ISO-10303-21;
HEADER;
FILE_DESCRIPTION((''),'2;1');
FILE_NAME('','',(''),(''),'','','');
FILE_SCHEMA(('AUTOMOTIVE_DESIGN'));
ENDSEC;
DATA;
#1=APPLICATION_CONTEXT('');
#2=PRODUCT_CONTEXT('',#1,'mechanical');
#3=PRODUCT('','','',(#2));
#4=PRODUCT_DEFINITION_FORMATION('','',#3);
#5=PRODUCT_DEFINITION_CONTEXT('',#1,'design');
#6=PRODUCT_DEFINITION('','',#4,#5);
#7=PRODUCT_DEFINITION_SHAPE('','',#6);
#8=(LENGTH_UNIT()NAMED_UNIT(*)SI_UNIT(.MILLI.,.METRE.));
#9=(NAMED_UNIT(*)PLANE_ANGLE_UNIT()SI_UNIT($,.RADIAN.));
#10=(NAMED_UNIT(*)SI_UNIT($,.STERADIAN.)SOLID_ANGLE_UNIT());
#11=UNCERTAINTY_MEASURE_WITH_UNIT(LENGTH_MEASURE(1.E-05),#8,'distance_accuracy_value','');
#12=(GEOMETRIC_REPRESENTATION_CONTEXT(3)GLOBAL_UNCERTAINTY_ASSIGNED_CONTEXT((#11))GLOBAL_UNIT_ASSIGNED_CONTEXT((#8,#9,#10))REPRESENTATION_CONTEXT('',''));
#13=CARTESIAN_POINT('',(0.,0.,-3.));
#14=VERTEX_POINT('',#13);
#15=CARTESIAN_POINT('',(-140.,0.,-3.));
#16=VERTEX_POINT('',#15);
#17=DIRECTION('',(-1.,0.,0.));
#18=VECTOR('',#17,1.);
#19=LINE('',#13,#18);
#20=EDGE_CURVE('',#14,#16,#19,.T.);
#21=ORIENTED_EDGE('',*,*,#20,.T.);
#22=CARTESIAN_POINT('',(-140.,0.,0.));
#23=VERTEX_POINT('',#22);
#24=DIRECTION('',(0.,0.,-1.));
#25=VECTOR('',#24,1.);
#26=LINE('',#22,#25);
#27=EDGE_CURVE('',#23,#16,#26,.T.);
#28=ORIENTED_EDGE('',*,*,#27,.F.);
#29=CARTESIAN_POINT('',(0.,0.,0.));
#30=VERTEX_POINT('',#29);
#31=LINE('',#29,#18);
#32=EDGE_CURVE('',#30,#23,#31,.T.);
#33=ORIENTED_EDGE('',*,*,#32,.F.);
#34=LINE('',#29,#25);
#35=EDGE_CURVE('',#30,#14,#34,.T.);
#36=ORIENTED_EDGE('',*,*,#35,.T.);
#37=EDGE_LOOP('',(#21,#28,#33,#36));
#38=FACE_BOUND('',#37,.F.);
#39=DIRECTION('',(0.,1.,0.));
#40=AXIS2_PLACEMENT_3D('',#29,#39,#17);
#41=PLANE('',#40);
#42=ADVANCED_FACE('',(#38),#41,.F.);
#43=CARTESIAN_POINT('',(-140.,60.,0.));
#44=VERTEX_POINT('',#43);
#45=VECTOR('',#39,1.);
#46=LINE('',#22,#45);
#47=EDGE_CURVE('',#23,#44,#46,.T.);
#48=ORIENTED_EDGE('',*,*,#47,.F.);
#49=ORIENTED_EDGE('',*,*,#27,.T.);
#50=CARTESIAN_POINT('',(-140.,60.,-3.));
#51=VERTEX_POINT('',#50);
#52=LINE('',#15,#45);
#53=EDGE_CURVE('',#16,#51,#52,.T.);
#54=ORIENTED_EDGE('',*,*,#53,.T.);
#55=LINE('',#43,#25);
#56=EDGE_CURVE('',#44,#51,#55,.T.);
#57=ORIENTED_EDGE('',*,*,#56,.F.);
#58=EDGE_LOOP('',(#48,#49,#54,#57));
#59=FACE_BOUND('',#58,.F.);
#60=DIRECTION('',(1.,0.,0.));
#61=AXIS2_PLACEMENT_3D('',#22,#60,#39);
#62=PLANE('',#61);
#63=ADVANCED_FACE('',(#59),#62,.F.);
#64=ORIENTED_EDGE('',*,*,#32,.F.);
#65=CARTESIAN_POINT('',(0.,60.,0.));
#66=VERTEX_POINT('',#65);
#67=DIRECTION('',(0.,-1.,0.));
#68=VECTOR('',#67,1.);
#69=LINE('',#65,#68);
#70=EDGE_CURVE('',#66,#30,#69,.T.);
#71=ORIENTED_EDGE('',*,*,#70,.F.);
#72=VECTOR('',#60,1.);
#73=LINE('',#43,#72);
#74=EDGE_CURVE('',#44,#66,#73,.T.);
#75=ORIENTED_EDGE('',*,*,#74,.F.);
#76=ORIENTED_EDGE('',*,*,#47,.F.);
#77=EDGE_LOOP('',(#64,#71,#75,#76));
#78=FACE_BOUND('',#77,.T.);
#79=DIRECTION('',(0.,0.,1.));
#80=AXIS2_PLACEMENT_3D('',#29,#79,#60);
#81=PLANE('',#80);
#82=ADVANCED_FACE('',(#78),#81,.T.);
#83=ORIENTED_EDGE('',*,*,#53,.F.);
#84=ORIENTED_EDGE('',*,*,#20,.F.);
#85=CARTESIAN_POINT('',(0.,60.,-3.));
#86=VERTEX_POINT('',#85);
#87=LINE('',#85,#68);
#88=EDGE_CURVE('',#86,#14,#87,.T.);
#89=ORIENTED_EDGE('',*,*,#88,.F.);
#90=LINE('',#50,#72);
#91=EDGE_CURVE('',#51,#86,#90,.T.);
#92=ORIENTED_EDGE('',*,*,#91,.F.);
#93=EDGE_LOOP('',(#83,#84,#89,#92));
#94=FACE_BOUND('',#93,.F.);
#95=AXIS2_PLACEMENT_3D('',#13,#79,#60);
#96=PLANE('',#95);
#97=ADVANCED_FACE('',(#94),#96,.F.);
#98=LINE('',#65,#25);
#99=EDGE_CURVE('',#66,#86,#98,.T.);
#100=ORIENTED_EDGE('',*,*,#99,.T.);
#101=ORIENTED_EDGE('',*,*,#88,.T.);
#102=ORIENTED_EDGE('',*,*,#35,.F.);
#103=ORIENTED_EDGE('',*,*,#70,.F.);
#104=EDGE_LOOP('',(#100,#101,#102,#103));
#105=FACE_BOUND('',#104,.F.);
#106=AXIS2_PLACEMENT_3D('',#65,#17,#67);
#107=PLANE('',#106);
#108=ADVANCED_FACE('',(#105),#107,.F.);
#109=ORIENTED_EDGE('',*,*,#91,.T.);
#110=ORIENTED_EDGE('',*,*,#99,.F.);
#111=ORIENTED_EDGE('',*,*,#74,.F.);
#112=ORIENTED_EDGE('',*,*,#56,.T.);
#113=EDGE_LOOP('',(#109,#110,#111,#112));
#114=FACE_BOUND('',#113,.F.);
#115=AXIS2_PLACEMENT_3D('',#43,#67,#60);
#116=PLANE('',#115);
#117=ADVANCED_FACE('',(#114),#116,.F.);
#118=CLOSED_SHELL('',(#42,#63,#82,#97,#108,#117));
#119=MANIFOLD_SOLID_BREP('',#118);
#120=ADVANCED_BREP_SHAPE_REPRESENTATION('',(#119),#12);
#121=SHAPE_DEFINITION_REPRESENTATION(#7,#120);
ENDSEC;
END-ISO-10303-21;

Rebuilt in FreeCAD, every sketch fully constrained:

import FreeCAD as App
import Part
import Sketcher
Q = App.Units.Quantity


def add_polygon(sketch, points):
    """Adds a closed chain of lines whose ends are joined by coincident constraints."""
    first, n = sketch.GeometryCount, len(points)
    for a, b in zip(points, points[1:] + points[:1]):
        sketch.addGeometry(Part.LineSegment(App.Vector(*a, 0), App.Vector(*b, 0)), False)
    for i in range(n):
        sketch.addConstraint(Sketcher.Constraint("Coincident", first + i, 2, first + (i + 1) % n, 1))

doc = App.newDocument("Part")
params = doc.addObject("Spreadsheet::Sheet", "Params")
for row, (alias, value) in enumerate([
    ("sketch1_width", "140 mm"),
    ("sketch1_height", "60 mm"),
    ("pad1_length", "3 mm"),
], start=1):
    params.set(f"A{row}", alias)
    params.set(f"B{row}", "=" + value)
    params.setAlias(f"B{row}", alias)

body = doc.addObject("PartDesign::Body", "Body")

# Sketch on XY plane
sketch1 = body.newObject("Sketcher::SketchObject", "Sketch")
sketch1.AttachmentSupport = (doc.getObject("XY_Plane"), [""])
sketch1.MapMode = "FlatFace"
add_polygon(sketch1, [(-140, 0), (0, 0), (0, 60), (-140, 60)])  # lines 0-3
sketch1.addConstraint(Sketcher.Constraint("Horizontal", 0))
sketch1.addConstraint(Sketcher.Constraint("Vertical", 1))
sketch1.addConstraint(Sketcher.Constraint("Horizontal", 2))
sketch1.addConstraint(Sketcher.Constraint("Vertical", 3))
sketch1.addConstraint(Sketcher.Constraint("Coincident", 0, 2, -1, 1))
sketch1.addConstraint(Sketcher.Constraint("DistanceX", 0, 1, 0, 2, Q("140 mm")))
sketch1.addConstraint(Sketcher.Constraint("DistanceY", 1, 1, 1, 2, Q("60 mm")))
sketch1.setExpression("Constraints[9]", "Params.sketch1_width")
sketch1.setExpression("Constraints[10]", "Params.sketch1_height")
pad1 = body.newObject("PartDesign::Pad", "Pad")
pad1.Profile = sketch1
pad1.setExpression("Length", "Params.pad1_length")
pad1.Reversed = True

doc.recompute()
